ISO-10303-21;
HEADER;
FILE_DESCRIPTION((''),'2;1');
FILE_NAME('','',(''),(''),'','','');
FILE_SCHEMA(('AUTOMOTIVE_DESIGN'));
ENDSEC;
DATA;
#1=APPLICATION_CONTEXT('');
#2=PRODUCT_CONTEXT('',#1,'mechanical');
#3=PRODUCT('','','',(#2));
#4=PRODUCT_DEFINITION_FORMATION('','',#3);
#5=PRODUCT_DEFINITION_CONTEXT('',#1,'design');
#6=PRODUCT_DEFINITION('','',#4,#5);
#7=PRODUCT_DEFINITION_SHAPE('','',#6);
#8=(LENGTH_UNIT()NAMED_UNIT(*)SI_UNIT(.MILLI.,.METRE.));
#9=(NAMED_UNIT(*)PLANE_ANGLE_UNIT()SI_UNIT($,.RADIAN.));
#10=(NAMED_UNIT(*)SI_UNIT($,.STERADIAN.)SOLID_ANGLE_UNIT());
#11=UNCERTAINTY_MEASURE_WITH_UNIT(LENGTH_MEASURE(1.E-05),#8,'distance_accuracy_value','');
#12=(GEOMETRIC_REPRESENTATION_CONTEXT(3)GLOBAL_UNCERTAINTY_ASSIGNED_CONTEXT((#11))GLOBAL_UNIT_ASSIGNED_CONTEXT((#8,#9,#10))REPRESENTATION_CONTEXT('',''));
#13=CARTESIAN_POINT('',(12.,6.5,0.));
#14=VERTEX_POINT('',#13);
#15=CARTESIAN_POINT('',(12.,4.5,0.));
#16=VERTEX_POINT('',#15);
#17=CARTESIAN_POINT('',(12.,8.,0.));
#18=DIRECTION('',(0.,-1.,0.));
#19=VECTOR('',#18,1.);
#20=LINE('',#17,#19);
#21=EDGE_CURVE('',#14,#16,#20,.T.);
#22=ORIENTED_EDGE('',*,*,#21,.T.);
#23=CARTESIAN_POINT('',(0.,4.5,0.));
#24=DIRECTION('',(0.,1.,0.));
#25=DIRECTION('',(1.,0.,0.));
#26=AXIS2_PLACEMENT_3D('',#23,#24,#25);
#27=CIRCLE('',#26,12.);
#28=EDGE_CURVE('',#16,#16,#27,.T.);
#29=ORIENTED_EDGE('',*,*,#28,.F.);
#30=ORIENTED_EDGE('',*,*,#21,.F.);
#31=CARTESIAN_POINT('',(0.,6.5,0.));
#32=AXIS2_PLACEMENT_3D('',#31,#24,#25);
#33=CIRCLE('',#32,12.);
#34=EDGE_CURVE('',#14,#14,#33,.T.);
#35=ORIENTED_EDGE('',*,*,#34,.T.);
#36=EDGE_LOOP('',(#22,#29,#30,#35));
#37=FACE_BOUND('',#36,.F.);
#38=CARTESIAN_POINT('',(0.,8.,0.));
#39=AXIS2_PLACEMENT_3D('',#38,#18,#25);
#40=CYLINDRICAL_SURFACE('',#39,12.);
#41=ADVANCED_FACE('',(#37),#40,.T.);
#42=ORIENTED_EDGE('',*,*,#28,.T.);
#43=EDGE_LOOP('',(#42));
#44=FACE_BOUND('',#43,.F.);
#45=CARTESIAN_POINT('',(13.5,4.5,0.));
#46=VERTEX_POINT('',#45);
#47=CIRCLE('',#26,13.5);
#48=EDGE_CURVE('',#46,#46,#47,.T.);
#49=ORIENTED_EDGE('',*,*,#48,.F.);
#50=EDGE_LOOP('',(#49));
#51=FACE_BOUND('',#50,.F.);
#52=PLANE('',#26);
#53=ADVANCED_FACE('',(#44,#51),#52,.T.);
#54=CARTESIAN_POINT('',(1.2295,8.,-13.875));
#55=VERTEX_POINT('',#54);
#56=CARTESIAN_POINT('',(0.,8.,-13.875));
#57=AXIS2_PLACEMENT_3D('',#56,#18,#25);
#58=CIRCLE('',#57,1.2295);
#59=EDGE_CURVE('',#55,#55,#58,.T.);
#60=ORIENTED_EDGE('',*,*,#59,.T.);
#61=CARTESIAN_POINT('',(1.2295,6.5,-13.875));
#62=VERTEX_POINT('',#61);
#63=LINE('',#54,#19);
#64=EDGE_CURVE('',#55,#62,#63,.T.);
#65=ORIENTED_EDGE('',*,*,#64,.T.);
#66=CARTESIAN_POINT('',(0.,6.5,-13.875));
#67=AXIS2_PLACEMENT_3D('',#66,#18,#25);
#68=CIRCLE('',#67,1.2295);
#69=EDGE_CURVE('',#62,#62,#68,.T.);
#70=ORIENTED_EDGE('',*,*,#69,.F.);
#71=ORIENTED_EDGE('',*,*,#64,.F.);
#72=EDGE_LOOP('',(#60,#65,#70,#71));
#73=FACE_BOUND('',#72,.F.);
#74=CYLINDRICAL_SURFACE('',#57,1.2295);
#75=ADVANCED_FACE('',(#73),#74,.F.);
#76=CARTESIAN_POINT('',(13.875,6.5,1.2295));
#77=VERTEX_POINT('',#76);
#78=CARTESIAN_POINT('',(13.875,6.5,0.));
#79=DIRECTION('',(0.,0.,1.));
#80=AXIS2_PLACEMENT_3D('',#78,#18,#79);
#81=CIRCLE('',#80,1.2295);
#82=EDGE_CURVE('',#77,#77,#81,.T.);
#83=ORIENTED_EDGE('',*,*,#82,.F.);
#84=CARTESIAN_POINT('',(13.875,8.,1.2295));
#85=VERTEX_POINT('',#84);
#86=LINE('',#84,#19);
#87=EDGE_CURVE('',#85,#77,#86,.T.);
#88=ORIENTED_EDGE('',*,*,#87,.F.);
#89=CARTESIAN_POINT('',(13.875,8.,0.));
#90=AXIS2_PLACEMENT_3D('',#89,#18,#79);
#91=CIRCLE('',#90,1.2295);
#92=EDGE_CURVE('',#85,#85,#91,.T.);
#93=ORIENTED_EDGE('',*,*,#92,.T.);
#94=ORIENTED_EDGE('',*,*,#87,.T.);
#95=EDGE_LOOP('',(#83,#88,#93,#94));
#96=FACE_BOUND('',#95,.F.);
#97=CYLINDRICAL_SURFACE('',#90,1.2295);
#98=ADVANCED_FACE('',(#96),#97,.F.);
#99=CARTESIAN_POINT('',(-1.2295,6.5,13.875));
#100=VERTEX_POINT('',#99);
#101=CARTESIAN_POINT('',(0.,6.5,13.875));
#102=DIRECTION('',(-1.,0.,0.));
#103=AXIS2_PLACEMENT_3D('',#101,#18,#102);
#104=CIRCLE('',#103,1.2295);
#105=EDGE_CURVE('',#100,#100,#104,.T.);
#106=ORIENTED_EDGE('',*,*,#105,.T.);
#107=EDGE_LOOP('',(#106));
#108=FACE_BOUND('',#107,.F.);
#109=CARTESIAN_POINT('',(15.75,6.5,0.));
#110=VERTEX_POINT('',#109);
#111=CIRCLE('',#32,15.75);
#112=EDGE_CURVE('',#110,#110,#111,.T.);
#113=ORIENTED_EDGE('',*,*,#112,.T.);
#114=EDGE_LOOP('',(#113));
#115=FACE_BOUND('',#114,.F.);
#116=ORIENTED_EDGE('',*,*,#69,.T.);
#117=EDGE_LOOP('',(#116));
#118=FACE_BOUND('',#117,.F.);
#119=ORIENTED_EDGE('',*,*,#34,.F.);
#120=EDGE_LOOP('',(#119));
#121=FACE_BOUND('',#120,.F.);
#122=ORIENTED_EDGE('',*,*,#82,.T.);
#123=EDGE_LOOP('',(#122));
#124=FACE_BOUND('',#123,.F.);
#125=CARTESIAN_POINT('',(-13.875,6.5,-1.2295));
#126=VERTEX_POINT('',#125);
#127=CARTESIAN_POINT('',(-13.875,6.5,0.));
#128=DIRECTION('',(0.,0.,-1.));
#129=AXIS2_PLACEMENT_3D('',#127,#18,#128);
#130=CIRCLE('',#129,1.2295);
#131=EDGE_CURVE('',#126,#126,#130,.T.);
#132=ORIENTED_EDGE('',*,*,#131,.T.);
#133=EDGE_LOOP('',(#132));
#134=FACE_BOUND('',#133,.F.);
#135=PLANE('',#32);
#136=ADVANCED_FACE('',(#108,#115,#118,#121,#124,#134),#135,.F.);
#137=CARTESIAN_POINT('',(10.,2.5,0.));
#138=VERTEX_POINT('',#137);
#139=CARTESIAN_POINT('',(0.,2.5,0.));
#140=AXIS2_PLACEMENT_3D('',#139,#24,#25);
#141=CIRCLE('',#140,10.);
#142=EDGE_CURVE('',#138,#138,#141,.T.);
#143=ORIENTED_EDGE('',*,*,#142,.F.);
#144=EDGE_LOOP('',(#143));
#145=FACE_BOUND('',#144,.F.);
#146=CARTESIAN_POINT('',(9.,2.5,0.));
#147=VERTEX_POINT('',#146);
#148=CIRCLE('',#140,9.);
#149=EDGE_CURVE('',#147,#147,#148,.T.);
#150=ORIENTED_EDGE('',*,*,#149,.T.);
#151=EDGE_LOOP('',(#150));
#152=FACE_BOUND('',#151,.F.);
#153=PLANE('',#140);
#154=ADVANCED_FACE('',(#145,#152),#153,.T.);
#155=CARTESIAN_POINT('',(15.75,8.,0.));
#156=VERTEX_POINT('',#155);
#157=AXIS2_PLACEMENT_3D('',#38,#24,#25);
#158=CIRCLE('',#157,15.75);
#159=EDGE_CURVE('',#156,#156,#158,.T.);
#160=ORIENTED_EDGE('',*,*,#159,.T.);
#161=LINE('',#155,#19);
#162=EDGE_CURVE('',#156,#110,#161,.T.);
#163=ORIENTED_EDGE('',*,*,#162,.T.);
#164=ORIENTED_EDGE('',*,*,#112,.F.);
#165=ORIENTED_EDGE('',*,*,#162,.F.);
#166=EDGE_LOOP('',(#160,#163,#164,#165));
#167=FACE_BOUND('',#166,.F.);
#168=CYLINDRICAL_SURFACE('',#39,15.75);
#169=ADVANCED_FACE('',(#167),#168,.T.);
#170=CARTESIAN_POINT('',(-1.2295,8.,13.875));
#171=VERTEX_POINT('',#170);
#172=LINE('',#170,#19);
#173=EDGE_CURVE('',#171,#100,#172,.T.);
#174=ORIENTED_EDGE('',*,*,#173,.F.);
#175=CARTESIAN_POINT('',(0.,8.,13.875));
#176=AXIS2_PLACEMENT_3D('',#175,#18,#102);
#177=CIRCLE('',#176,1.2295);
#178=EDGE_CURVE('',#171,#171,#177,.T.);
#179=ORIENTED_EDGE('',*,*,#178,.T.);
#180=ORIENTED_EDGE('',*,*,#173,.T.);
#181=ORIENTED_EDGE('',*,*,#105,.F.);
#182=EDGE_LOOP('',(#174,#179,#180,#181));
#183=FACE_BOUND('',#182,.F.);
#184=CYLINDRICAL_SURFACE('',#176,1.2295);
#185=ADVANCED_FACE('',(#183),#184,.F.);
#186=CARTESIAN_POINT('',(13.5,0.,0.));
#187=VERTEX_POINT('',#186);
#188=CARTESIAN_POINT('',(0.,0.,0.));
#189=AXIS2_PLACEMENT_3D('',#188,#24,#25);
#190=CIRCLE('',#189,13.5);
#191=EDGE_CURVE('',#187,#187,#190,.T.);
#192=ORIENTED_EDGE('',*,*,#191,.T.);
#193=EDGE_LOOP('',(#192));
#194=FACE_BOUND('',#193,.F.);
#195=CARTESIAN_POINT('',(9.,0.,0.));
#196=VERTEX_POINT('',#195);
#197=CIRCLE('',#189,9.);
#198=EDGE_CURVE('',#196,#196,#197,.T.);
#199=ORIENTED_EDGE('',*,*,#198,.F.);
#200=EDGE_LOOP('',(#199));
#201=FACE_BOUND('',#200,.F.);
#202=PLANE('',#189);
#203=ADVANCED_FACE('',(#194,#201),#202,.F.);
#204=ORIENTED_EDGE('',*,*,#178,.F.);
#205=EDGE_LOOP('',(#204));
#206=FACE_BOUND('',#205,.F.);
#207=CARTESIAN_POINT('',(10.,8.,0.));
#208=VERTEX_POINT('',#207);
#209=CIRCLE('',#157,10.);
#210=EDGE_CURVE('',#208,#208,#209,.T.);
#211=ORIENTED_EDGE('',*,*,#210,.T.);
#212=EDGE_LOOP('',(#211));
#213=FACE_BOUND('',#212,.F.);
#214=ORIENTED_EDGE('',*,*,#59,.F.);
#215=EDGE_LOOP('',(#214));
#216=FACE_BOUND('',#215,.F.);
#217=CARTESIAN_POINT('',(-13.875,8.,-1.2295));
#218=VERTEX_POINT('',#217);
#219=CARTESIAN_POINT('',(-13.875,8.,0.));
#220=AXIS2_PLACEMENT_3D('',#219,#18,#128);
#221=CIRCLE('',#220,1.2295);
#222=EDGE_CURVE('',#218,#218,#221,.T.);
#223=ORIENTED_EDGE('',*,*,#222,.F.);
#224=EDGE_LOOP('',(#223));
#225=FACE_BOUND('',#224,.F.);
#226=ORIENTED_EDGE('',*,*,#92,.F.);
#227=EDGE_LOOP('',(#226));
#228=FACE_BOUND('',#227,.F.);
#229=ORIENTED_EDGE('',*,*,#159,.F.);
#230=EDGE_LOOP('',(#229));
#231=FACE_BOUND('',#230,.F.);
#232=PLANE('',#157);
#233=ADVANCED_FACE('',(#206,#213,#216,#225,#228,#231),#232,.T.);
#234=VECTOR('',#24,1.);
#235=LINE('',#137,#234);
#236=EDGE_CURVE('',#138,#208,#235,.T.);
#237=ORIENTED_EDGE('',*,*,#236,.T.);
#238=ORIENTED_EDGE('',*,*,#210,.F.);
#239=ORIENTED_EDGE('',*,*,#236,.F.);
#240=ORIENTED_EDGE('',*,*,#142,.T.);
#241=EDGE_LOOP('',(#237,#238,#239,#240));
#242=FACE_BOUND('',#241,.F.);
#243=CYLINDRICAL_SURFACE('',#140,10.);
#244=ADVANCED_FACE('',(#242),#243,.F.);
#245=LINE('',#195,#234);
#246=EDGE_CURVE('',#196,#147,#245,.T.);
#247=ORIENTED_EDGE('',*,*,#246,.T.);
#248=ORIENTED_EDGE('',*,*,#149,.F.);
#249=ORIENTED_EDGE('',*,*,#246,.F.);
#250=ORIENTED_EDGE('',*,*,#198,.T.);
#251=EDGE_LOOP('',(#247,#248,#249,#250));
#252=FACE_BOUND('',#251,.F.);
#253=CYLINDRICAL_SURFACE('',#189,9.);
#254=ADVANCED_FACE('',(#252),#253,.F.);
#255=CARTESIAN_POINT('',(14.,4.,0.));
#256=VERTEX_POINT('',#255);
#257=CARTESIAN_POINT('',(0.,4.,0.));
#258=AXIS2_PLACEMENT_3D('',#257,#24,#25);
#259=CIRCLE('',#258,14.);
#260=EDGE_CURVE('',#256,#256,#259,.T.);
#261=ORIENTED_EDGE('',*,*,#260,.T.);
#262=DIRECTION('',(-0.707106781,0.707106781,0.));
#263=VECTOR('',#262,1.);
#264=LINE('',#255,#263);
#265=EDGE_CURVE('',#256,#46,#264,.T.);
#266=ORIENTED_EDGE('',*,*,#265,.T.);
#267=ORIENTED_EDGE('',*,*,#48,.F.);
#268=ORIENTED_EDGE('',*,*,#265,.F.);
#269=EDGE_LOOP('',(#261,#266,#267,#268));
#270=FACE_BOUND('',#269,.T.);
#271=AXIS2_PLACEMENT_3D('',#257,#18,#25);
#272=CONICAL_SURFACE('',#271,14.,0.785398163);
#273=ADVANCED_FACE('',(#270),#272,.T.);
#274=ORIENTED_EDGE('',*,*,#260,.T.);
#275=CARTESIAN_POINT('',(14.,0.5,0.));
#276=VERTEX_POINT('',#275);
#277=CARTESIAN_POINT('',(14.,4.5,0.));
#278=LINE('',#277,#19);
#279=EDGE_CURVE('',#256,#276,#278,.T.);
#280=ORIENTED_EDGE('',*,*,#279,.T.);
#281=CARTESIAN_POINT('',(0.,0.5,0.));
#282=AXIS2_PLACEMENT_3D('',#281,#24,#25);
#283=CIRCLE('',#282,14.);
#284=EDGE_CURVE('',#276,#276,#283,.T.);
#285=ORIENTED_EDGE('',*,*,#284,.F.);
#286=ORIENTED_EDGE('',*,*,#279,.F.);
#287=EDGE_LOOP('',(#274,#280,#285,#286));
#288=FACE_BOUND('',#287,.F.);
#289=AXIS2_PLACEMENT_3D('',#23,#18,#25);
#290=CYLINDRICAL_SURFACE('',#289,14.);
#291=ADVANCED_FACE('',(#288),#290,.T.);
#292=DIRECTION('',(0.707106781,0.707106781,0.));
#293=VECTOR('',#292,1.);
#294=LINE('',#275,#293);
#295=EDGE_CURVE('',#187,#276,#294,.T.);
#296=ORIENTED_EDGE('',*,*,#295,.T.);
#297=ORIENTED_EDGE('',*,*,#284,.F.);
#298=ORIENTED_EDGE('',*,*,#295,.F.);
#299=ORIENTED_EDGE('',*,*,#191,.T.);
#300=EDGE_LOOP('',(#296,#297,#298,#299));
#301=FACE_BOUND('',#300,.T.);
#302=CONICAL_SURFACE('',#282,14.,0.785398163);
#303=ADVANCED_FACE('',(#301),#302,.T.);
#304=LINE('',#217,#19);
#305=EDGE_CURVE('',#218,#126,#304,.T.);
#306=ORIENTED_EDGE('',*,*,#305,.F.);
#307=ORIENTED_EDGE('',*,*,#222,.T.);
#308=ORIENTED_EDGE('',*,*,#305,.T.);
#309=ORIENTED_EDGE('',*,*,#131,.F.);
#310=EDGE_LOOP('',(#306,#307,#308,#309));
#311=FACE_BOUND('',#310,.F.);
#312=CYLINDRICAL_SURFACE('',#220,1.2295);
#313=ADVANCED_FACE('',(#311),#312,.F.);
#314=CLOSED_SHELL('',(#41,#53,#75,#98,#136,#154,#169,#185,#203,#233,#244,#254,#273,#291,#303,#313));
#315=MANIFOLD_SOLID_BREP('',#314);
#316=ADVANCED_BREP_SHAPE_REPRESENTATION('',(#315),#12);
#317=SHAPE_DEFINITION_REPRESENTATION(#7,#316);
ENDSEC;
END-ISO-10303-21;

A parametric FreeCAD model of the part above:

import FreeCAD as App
import Part
import Sketcher


def edges_at(feature, points):
    """Names of the edges that pass closest to the given points."""
    edges = feature.Shape.Edges
    near = lambda p: min(range(len(edges)), key=lambda i: edges[i].distToShape(Part.Vertex(*p))[0])
    return sorted({f"Edge{near(p) + 1}" for p in points})


def add_polygon(sketch, points):
    """Adds a closed chain of lines whose ends are joined by coincident constraints."""
    first, n = sketch.GeometryCount, len(points)
    for a, b in zip(points, points[1:] + points[:1]):
        sketch.addGeometry(Part.LineSegment(App.Vector(*a, 0), App.Vector(*b, 0)), False)
    for i in range(n):
        sketch.addConstraint(Sketcher.Constraint("Coincident", first + i, 2, first + (i + 1) % n, 1))

doc = App.newDocument("Part")
params = doc.addObject("Spreadsheet::Sheet", "Params")
for row, (alias, value) in enumerate([
    ("sketch1_width", "2 mm"),
    ("sketch1_height", "4.5 mm"),
    ("sketch1_height2", "1.5 mm"),
    ("sketch1_width2", "5 mm"),
    ("sketch1_width3", "3.75 mm"),
    ("revolution_angle", "360 deg"),
    ("chamfer_size", "0.5 mm"),
    ("hole_diameter", "2.459 mm"),
    ("hole_depth", "1.5 mm"),
], start=1):
    params.set(f"A{row}", alias)
    params.set(f"B{row}", "=" + value)
    params.setAlias(f"B{row}", alias)

body = doc.addObject("PartDesign::Body", "Body")

# Sketch on XY plane
sketch1 = body.newObject("Sketcher::SketchObject", "Sketch")
sketch1.AttachmentSupport = (doc.getObject("XY_Plane"), [""])
sketch1.MapMode = "FlatFace"
add_polygon(sketch1, [(9, 2.5), (9, 0), (14, 0), (14, 4.5), (12, 4.5), (12, 6.5), (15.75, 6.5), (15.75, 8), (10, 8), (10, 2.5)])  # lines 0-9
sketch1.addConstraint([
    Sketcher.Constraint("Vertical", 0),
    Sketcher.Constraint("Horizontal", 1),
    Sketcher.Constraint("Vertical", 2),
    Sketcher.Constraint("Horizontal", 3),
    Sketcher.Constraint("Vertical", 4),
    Sketcher.Constraint("Horizontal", 5),
    Sketcher.Constraint("Vertical", 6),
    Sketcher.Constraint("Horizontal", 7),
    Sketcher.Constraint("Vertical", 8),
    Sketcher.Constraint("Horizontal", 9),
    Sketcher.Constraint("PointOnObject", 0, 2, -1),
    Sketcher.Constraint("Equal", 3, 4),
    Sketcher.Constraint("DistanceX", 3, 2, 3, 1, 2.0),
    Sketcher.Constraint("DistanceY", 2, 1, 2, 2, 4.5),
    Sketcher.Constraint("DistanceY", 6, 1, 6, 2, 1.5),
    Sketcher.Constraint("DistanceX", 7, 2, 4, 2, 2.0),
    Sketcher.Constraint("DistanceY", 8, 2, 3, 2, 2.0),
    Sketcher.Constraint("DistanceX", 1, 1, 1, 2, 5.0),
    Sketcher.Constraint("DistanceX", -1, 1, 0, 2, 9.0),
    Sketcher.Constraint("DistanceX", 5, 1, 5, 2, 3.75),
])
sketch1.setExpression("Constraints[22]", "Params.sketch1_width")
sketch1.setExpression("Constraints[23]", "Params.sketch1_height")
sketch1.setExpression("Constraints[24]", "Params.sketch1_height2")
sketch1.setExpression("Constraints[27]", "Params.sketch1_width2")
sketch1.setExpression("Constraints[29]", "Params.sketch1_width3")
revolution = body.newObject("PartDesign::Revolution", "Revolution")
revolution.Profile = sketch1
revolution.ReferenceAxis = (sketch1, ["V_Axis"])
revolution.setExpression("Angle", "Params.revolution_angle")
doc.recompute()

chamfer = body.newObject("PartDesign::Chamfer", "Chamfer")
chamfer.Base = (revolution, edges_at(revolution, [(-14, 4.5, 0), (-14, 0, 0)]))
chamfer.setExpression("Size", "Params.chamfer_size")

# Sketch on XZ plane
sketch2 = body.newObject("Sketcher::SketchObject", "Sketch001")
sketch2.AttachmentSupport = (doc.getObject("XZ_Plane"), [""])
sketch2.MapMode = "FlatFace"
sketch2.AttachmentOffset = App.Placement(App.Vector(0, 0, -8), App.Rotation())
sketch2.addGeometry(Part.Circle(App.Vector(13.875, 0, 0), App.Vector(0, 0, 1), 1.2295), False)
sketch2.addConstraint([
    Sketcher.Constraint("PointOnObject", 0, 3, -1),
    Sketcher.Constraint("Diameter", 0, 2.459),
    Sketcher.Constraint("DistanceX", -1, 1, 0, 3, 13.875),
])
doc.recompute()
hole = body.newObject("PartDesign::Hole", "Hole")
hole.Profile = sketch2
hole.ThreadType = "None"
hole.setExpression("Diameter", "Params.hole_diameter")
hole.DepthType = "Dimension"
hole.setExpression("Depth", "Params.hole_depth")
hole.DrillPoint = "Flat"
hole.Reversed = True
doc.recompute()

polarpattern = body.newObject("PartDesign::PolarPattern", "PolarPattern")
polarpattern.Originals = [hole]
polarpattern.Axis = (doc.getObject("Y_Axis"), [""])
polarpattern.Angle = 360
polarpattern.Occurrences = 4
body.Tip = polarpattern

doc.recompute()
